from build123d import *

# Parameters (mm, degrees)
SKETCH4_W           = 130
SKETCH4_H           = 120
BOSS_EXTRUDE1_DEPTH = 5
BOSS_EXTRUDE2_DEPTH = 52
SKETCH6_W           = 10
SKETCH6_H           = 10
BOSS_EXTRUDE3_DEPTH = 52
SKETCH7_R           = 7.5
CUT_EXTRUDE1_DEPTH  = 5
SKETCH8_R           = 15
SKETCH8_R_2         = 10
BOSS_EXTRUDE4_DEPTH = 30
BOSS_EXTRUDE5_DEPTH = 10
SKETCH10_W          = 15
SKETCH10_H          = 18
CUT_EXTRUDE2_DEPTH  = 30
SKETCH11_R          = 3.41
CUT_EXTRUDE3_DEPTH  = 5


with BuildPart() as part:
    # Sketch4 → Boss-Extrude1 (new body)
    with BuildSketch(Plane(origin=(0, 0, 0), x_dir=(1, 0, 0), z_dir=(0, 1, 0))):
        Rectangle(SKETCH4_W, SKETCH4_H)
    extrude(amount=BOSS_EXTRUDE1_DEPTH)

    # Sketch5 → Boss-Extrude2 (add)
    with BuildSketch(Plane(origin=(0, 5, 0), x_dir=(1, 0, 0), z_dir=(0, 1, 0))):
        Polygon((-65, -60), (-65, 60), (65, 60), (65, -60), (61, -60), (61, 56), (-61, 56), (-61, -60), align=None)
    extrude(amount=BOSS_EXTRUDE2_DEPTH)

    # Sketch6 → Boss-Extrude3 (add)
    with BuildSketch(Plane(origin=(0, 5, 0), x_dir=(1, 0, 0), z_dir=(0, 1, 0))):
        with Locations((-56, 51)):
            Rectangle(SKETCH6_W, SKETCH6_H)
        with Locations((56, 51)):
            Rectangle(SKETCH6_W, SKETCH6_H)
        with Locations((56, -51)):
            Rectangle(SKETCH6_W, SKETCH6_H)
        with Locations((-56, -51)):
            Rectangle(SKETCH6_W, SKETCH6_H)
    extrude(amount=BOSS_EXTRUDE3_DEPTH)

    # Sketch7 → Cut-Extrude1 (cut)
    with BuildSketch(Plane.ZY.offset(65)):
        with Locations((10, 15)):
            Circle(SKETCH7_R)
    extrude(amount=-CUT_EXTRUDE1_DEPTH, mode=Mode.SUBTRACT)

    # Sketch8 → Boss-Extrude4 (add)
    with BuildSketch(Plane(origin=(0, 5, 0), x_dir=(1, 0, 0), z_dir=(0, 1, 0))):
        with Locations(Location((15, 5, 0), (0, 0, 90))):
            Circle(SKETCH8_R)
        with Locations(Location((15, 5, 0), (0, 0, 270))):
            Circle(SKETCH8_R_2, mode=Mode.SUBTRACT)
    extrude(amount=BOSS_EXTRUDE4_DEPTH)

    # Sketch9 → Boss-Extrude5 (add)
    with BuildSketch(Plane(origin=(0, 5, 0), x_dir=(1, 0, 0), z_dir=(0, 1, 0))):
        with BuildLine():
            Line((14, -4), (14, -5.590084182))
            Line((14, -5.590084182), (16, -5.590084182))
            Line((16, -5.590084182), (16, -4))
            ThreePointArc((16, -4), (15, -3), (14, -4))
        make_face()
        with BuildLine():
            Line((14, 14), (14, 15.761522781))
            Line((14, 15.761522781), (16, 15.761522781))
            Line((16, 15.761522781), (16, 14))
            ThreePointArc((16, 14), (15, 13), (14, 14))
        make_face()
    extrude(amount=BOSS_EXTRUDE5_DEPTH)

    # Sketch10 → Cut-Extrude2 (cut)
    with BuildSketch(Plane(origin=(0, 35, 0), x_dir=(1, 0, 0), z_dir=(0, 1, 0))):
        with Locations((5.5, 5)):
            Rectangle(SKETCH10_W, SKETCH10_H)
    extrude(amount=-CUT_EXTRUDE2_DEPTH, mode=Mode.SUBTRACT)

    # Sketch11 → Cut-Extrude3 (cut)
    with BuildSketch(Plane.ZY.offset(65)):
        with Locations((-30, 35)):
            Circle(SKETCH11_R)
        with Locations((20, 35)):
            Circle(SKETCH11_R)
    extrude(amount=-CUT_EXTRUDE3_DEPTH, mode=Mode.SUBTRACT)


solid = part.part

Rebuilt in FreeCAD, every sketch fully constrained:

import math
import FreeCAD as App
import Part
import Sketcher

doc = App.newDocument("Part")
body = doc.addObject("PartDesign::Body", "Body")

# Sketch on XZ plane
sketch1 = body.newObject("Sketcher::SketchObject", "Sketch")
sketch1.AttachmentSupport = (doc.getObject("XZ_Plane"), [""])
sketch1.MapMode = "FlatFace"
sketch1.addGeometry([
    Part.LineSegment(App.Vector(-65, -60, 0), App.Vector(-65, 60, 0)),
    Part.LineSegment(App.Vector(-65, 60, 0), App.Vector(65, 60, 0)),
    Part.LineSegment(App.Vector(65, 60, 0), App.Vector(65, -60, 0)),
    Part.LineSegment(App.Vector(65, -60, 0), App.Vector(-65, -60, 0)),
], False)
sketch1.addConstraint([
    Sketcher.Constraint("Coincident", 0, 2, 1, 1),
    Sketcher.Constraint("Coincident", 1, 2, 2, 1),
    Sketcher.Constraint("Coincident", 2, 2, 3, 1),
    Sketcher.Constraint("Coincident", 3, 2, 0, 1),
    Sketcher.Constraint("Vertical", 0),
    Sketcher.Constraint("Horizontal", 1),
    Sketcher.Constraint("Vertical", 2),
    Sketcher.Constraint("Horizontal", 3),
    Sketcher.Constraint("Symmetric", 0, 2, 2, 2, -1, 1),
    Sketcher.Constraint("DistanceX", 1, 1, 1, 2, 130.0),
    Sketcher.Constraint("DistanceY", 0, 1, 0, 2, 120.0),
])
pad1 = body.newObject("PartDesign::Pad", "Pad")
pad1.Profile = sketch1
pad1.Length = 5
pad1.Reversed = True

# Sketch on XZ plane
sketch2 = body.newObject("Sketcher::SketchObject", "Sketch001")
sketch2.AttachmentSupport = (doc.getObject("XZ_Plane"), [""])
sketch2.MapMode = "FlatFace"
sketch2.AttachmentOffset = App.Placement(App.Vector(0, 0, -5), App.Rotation())
sketch2.addGeometry([
    Part.LineSegment(App.Vector(-65, -60, 0), App.Vector(-65, 60, 0)),  # 0
    Part.LineSegment(App.Vector(-65, 60, 0), App.Vector(-61, 60, 0)),  # 1
    Part.LineSegment(App.Vector(-61, 60, 0), App.Vector(-61, -56, 0)),  # 2
    Part.LineSegment(App.Vector(-61, -56, 0), App.Vector(61, -56, 0)),  # 3
    Part.LineSegment(App.Vector(61, -56, 0), App.Vector(61, 60, 0)),  # 4
    Part.LineSegment(App.Vector(61, 60, 0), App.Vector(65, 60, 0)),  # 5
    Part.LineSegment(App.Vector(65, 60, 0), App.Vector(65, -60, 0)),  # 6
    Part.LineSegment(App.Vector(65, -60, 0), App.Vector(-65, -60, 0)),  # 7
], False)
sketch2.addConstraint([
    Sketcher.Constraint("Coincident", 0, 2, 1, 1),
    Sketcher.Constraint("Coincident", 1, 2, 2, 1),
    Sketcher.Constraint("Coincident", 2, 2, 3, 1),
    Sketcher.Constraint("Coincident", 3, 2, 4, 1),
    Sketcher.Constraint("Coincident", 4, 2, 5, 1),
    Sketcher.Constraint("Coincident", 5, 2, 6, 1),
    Sketcher.Constraint("Coincident", 6, 2, 7, 1),
    Sketcher.Constraint("Coincident", 7, 2, 0, 1),
    Sketcher.Constraint("Vertical", 0),
    Sketcher.Constraint("Horizontal", 1),
    Sketcher.Constraint("Vertical", 2),
    Sketcher.Constraint("Horizontal", 3),
    Sketcher.Constraint("Vertical", 4),
    Sketcher.Constraint("Horizontal", 5),
    Sketcher.Constraint("Vertical", 6),
    Sketcher.Constraint("Horizontal", 7),
    Sketcher.Constraint("Symmetric", 0, 2, 6, 2, -1, 1),
    Sketcher.Constraint("Symmetric", 1, 2, 4, 2, -2),
    Sketcher.Constraint("DistanceX", 1, 1, 1, 2, 4.0),
    Sketcher.Constraint("DistanceX", 3, 1, 3, 2, 122.0),
    Sketcher.Constraint("DistanceY", 0, 1, 0, 2, 120.0),
    Sketcher.Constraint("DistanceY", 2, 2, 2, 1, 116.0),
])
pad2 = body.newObject("PartDesign::Pad", "Pad001")
pad2.Profile = sketch2
pad2.Length = 52
pad2.Reversed = True

# Sketch on XZ plane
sketch3 = body.newObject("Sketcher::SketchObject", "Sketch002")
sketch3.AttachmentSupport = (doc.getObject("XZ_Plane"), [""])
sketch3.MapMode = "FlatFace"
sketch3.AttachmentOffset = App.Placement(App.Vector(0, 0, -5), App.Rotation())
sketch3.addGeometry([
    Part.LineSegment(App.Vector(-61, -56, 0), App.Vector(-61, -46, 0)),  # 0
    Part.LineSegment(App.Vector(-61, -46, 0), App.Vector(-51, -46, 0)),  # 1
    Part.LineSegment(App.Vector(-51, -46, 0), App.Vector(-51, -56, 0)),  # 2
    Part.LineSegment(App.Vector(-51, -56, 0), App.Vector(-61, -56, 0)),  # 3
    Part.LineSegment(App.Vector(51, -56, 0), App.Vector(51, -46, 0)),  # 4
    Part.LineSegment(App.Vector(51, -46, 0), App.Vector(61, -46, 0)),  # 5
    Part.LineSegment(App.Vector(61, -46, 0), App.Vector(61, -56, 0)),  # 6
    Part.LineSegment(App.Vector(61, -56, 0), App.Vector(51, -56, 0)),  # 7
    Part.LineSegment(App.Vector(51, 46, 0), App.Vector(51, 56, 0)),  # 8
    Part.LineSegment(App.Vector(51, 56, 0), App.Vector(61, 56, 0)),  # 9
    Part.LineSegment(App.Vector(61, 56, 0), App.Vector(61, 46, 0)),  # 10
    Part.LineSegment(App.Vector(61, 46, 0), App.Vector(51, 46, 0)),  # 11
    Part.LineSegment(App.Vector(-61, 46, 0), App.Vector(-61, 56, 0)),  # 12
    Part.LineSegment(App.Vector(-61, 56, 0), App.Vector(-51, 56, 0)),  # 13
    Part.LineSegment(App.Vector(-51, 56, 0), App.Vector(-51, 46, 0)),  # 14
    Part.LineSegment(App.Vector(-51, 46, 0), App.Vector(-61, 46, 0)),  # 15
], False)
sketch3.addConstraint([
    Sketcher.Constraint("Coincident", 0, 2, 1, 1),
    Sketcher.Constraint("Coincident", 1, 2, 2, 1),
    Sketcher.Constraint("Coincident", 2, 2, 3, 1),
    Sketcher.Constraint("Coincident", 3, 2, 0, 1),
    Sketcher.Constraint("Coincident", 4, 2, 5, 1),
    Sketcher.Constraint("Coincident", 5, 2, 6, 1),
    Sketcher.Constraint("Coincident", 6, 2, 7, 1),
    Sketcher.Constraint("Coincident", 7, 2, 4, 1),
    Sketcher.Constraint("Coincident", 8, 2, 9, 1),
    Sketcher.Constraint("Coincident", 9, 2, 10, 1),
    Sketcher.Constraint("Coincident", 10, 2, 11, 1),
    Sketcher.Constraint("Coincident", 11, 2, 8, 1),
    Sketcher.Constraint("Coincident", 12, 2, 13, 1),
    Sketcher.Constraint("Coincident", 13, 2, 14, 1),
    Sketcher.Constraint("Coincident", 14, 2, 15, 1),
    Sketcher.Constraint("Coincident", 15, 2, 12, 1),
    Sketcher.Constraint("Vertical", 0),
    Sketcher.Constraint("Horizontal", 1),
    Sketcher.Constraint("Vertical", 2),
    Sketcher.Constraint("Horizontal", 3),
    Sketcher.Constraint("Vertical", 4),
    Sketcher.Constraint("Horizontal", 5),
    Sketcher.Constraint("Vertical", 6),
    Sketcher.Constraint("Horizontal", 7),
    Sketcher.Constraint("Vertical", 8),
    Sketcher.Constraint("Horizontal", 9),
    Sketcher.Constraint("Vertical", 10),
    Sketcher.Constraint("Horizontal", 11),
    Sketcher.Constraint("Vertical", 12),
    Sketcher.Constraint("Horizontal", 13),
    Sketcher.Constraint("Vertical", 14),
    Sketcher.Constraint("Horizontal", 15),
    Sketcher.Constraint("Symmetric", 2, 2, 8, 2, -1, 1),
    Sketcher.Constraint("Symmetric", 0, 2, 10, 2, -1, 1),
    Sketcher.Constraint("Symmetric", 6, 2, 12, 2, -1, 1),
    Sketcher.Constraint("Symmetric", 4, 2, 14, 2, -1, 1),
    Sketcher.Constraint("Symmetric", 1, 2, 4, 2, -2),
    Sketcher.Constraint("Symmetric", 3, 2, 6, 2, -2),
    Sketcher.Constraint("Equal", 15, 0),
    Sketcher.Constraint("DistanceX", 1, 1, 1, 2, 10.0),
    Sketcher.Constraint("DistanceX", 0, 2, -1, 1, 61.0),
    Sketcher.Constraint("DistanceY", 0, 2, -1, 1, 46.0),
])
pad3 = body.newObject("PartDesign::Pad", "Pad002")
pad3.Profile = sketch3
pad3.Length = 52
pad3.Reversed = True

# Sketch on YZ plane
sketch4 = body.newObject("Sketcher::SketchObject", "Sketch003")
sketch4.AttachmentSupport = (doc.getObject("YZ_Plane"), [""])
sketch4.MapMode = "FlatFace"
sketch4.AttachmentOffset = App.Placement(App.Vector(0, 0, -65), App.Rotation())
sketch4.addGeometry(Part.Circle(App.Vector(15, 10, 0), App.Vector(0, 0, 1), 8), False)
sketch4.addConstraint([
    Sketcher.Constraint("Diameter", 0, 15.0),
    Sketcher.Constraint("DistanceX", -1, 1, 0, 3, 15.0),
    Sketcher.Constraint("DistanceY", -1, 1, 0, 3, 10.0),
])
pocket1 = body.newObject("PartDesign::Pocket", "Pocket")
pocket1.Profile = sketch4
pocket1.Length = 5
pocket1.Reversed = True

# Sketch on XZ plane
sketch5 = body.newObject("Sketcher::SketchObject", "Sketch004")
sketch5.AttachmentSupport = (doc.getObject("XZ_Plane"), [""])
sketch5.MapMode = "FlatFace"
sketch5.AttachmentOffset = App.Placement(App.Vector(0, 0, -5), App.Rotation())
sketch5.addGeometry([
    Part.Circle(App.Vector(15, -5, 0), App.Vector(0, 0, 1), 15),
    Part.Circle(App.Vector(15, -5, 0), App.Vector(0, 0, 1), 10),
], False)
sketch5.addConstraint([
    Sketcher.Constraint("Coincident", 1, 3, 0, 3),
    Sketcher.Constraint("Diameter", 0, 30.0),
    Sketcher.Constraint("Diameter", 1, 20.0),
    Sketcher.Constraint("DistanceX", -1, 1, 0, 3, 15.0),
    Sketcher.Constraint("DistanceY", 0, 3, -1, 1, 5.0),
])
pad4 = body.newObject("PartDesign::Pad", "Pad003")
pad4.Profile = sketch5
pad4.Length = 30
pad4.Reversed = True

# Sketch on XZ plane
sketch6 = body.newObject("Sketcher::SketchObject", "Sketch005")
sketch6.AttachmentSupport = (doc.getObject("XZ_Plane"), [""])
sketch6.MapMode = "FlatFace"
sketch6.AttachmentOffset = App.Placement(App.Vector(0, 0, -5), App.Rotation())
sketch6.addGeometry([
    Part.LineSegment(App.Vector(14, 4, 0), App.Vector(14, 5.6, 0)),  # 0
    Part.LineSegment(App.Vector(14, 5.6, 0), App.Vector(16, 5.6, 0)),  # 1
    Part.LineSegment(App.Vector(16, 5.6, 0), App.Vector(16, 4, 0)),  # 2
    Part.ArcOfCircle(Part.Circle(App.Vector(15, 4, 0), App.Vector(0, 0, 1), 1), math.radians(180), math.radians(360)),  # 3
    Part.LineSegment(App.Vector(14, -15.8, 0), App.Vector(14, -14, 0)),  # 4
    Part.ArcOfCircle(Part.Circle(App.Vector(15, -14, 0), App.Vector(0, 0, 1), 1), math.radians(0), math.radians(180)),  # 5
    Part.LineSegment(App.Vector(16, -14, 0), App.Vector(16, -15.8, 0)),  # 6
    Part.LineSegment(App.Vector(16, -15.8, 0), App.Vector(14, -15.8, 0)),  # 7
], False)
sketch6.addConstraint([
    Sketcher.Constraint("Coincident", 0, 2, 1, 1),
    Sketcher.Constraint("Coincident", 1, 2, 2, 1),
    Sketcher.Constraint("Tangent", 2, 2, 3, 2),
    Sketcher.Constraint("Tangent", 3, 1, 0, 1),
    Sketcher.Constraint("Tangent", 4, 2, 5, 2),
    Sketcher.Constraint("Tangent", 5, 1, 6, 1),
    Sketcher.Constraint("Coincident", 6, 2, 7, 1),
    Sketcher.Constraint("Coincident", 7, 2, 4, 1),
    Sketcher.Constraint("Vertical", 0),
    Sketcher.Constraint("Horizontal", 1),
    Sketcher.Constraint("Vertical", 2),
    Sketcher.Constraint("Vertical", 4),
    Sketcher.Constraint("Vertical", 6),
    Sketcher.Constraint("Horizontal", 7),
    Sketcher.Constraint("Equal", 3, 5),
    Sketcher.Constraint("Vertical", 3, 3, 5, 3),
    Sketcher.Constraint("Radius", 3, 1.0),
    Sketcher.Constraint("DistanceX", -1, 1, 3, 3, 15.0),
    Sketcher.Constraint("DistanceY", -1, 1, 3, 3, 4.0),
    Sketcher.Constraint("DistanceY", 5, 3, -1, 1, 14.0),
    Sketcher.Constraint("DistanceY", 0, 1, 0, 2, 1.590084),
    Sketcher.Constraint("DistanceY", 4, 1, 4, 2, 1.761523),
])
pad5 = body.newObject("PartDesign::Pad", "Pad004")
pad5.Profile = sketch6
pad5.Length = 10
pad5.Reversed = True

# Sketch on XZ plane
sketch7 = body.newObject("Sketcher::SketchObject", "Sketch006")
sketch7.AttachmentSupport = (doc.getObject("XZ_Plane"), [""])
sketch7.MapMode = "FlatFace"
sketch7.AttachmentOffset = App.Placement(App.Vector(0, 0, -35), App.Rotation())
sketch7.addGeometry([
    Part.LineSegment(App.Vector(-2, -14, 0), App.Vector(-2, 4, 0)),
    Part.LineSegment(App.Vector(-2, 4, 0), App.Vector(13, 4, 0)),
    Part.LineSegment(App.Vector(13, 4, 0), App.Vector(13, -14, 0)),
    Part.LineSegment(App.Vector(13, -14, 0), App.Vector(-2, -14, 0)),
], False)
sketch7.addConstraint([
    Sketcher.Constraint("Coincident", 0, 2, 1, 1),
    Sketcher.Constraint("Coincident", 1, 2, 2, 1),
    Sketcher.Constraint("Coincident", 2, 2, 3, 1),
    Sketcher.Constraint("Coincident", 3, 2, 0, 1),
    Sketcher.Constraint("Vertical", 0),
    Sketcher.Constraint("Horizontal", 1),
    Sketcher.Constraint("Vertical", 2),
    Sketcher.Constraint("Horizontal", 3),
    Sketcher.Constraint("DistanceX", 1, 1, 1, 2, 15.0),
    Sketcher.Constraint("DistanceY", 0, 1, 0, 2, 18.0),
    Sketcher.Constraint("DistanceX", 0, 2, -1, 1, 2.0),
    Sketcher.Constraint("DistanceY", -1, 1, 0, 2, 4.0),
])
pocket2 = body.newObject("PartDesign::Pocket", "Pocket001")
pocket2.Profile = sketch7
pocket2.Length = 30
pocket2.Reversed = True

# Sketch on YZ plane
sketch8 = body.newObject("Sketcher::SketchObject", "Sketch007")
sketch8.AttachmentSupport = (doc.getObject("YZ_Plane"), [""])
sketch8.MapMode = "FlatFace"
sketch8.AttachmentOffset = App.Placement(App.Vector(0, 0, -65), App.Rotation())
sketch8.addGeometry([
    Part.Circle(App.Vector(35, -30, 0), App.Vector(0, 0, 1), 3.4),
    Part.Circle(App.Vector(35, 20, 0), App.Vector(0, 0, 1), 3.4),
], False)
sketch8.addConstraint([
    Sketcher.Constraint("Equal", 0, 1),
    Sketcher.Constraint("Vertical", 0, 3, 1, 3),
    Sketcher.Constraint("Diameter", 0, 6.82),
    Sketcher.Constraint("DistanceX", -1, 1, 0, 3, 35.0),
    Sketcher.Constraint("DistanceY", 0, 3, -1, 1, 30.0),
    Sketcher.Constraint("DistanceY", -1, 1, 1, 3, 20.0),
])
pocket3 = body.newObject("PartDesign::Pocket", "Pocket002")
pocket3.Profile = sketch8
pocket3.Length = 5
pocket3.Reversed = True

doc.recompute()
